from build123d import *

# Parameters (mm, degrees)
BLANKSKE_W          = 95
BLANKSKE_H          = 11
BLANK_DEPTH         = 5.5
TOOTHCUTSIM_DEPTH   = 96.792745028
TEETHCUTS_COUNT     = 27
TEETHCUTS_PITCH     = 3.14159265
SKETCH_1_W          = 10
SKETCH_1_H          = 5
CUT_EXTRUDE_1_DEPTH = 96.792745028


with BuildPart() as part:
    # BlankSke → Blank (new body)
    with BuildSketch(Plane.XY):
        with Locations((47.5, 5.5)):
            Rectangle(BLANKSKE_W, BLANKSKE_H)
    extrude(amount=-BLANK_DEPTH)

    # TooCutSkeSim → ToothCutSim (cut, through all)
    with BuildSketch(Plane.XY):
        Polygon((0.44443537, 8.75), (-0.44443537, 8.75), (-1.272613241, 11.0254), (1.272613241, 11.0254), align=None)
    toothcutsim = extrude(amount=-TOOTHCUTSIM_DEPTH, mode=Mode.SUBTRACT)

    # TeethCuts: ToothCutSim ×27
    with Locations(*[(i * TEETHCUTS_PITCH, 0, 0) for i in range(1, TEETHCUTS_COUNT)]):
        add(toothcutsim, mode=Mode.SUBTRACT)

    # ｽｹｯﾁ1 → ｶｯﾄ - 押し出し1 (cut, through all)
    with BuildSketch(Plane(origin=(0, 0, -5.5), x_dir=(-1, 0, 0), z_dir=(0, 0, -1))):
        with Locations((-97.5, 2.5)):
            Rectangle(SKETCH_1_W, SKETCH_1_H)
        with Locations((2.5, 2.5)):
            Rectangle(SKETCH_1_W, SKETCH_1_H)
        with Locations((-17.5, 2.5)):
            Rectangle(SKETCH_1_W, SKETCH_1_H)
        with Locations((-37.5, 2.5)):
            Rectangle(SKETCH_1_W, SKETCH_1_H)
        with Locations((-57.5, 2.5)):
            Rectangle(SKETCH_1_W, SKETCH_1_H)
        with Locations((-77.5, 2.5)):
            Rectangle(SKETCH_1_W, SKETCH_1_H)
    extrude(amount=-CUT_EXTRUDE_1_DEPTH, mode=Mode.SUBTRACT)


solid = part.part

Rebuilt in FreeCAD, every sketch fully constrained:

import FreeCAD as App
import Part
import Sketcher
Q = App.Units.Quantity


def add_polygon(sketch, points):
    """Adds a closed chain of lines whose ends are joined by coincident constraints."""
    first, n = sketch.GeometryCount, len(points)
    for a, b in zip(points, points[1:] + points[:1]):
        sketch.addGeometry(Part.LineSegment(App.Vector(*a, 0), App.Vector(*b, 0)), False)
    for i in range(n):
        sketch.addConstraint(Sketcher.Constraint("Coincident", first + i, 2, first + (i + 1) % n, 1))

doc = App.newDocument("Part")
body = doc.addObject("PartDesign::Body", "Body")

# Sketch on XY plane
sketch1 = doc.addObject("Sketcher::SketchObject", "Sketch")
body.addObject(sketch1)
sketch1.AttachmentSupport = (doc.XY_Plane, [""])
sketch1.MapMode = "FlatFace"
add_polygon(sketch1, [(0, 11), (0, 0), (95, 0), (95, 11)])  # lines 0-3
sketch1.addConstraint([
    Sketcher.Constraint("Vertical", 0),
    Sketcher.Constraint("Horizontal", 1),
    Sketcher.Constraint("Vertical", 2),
    Sketcher.Constraint("Horizontal", 3),
    Sketcher.Constraint("Coincident", 0, 2, -1, 1),
    Sketcher.Constraint("DistanceX", 1, 1, 1, 2, Q("95 mm")),
    Sketcher.Constraint("DistanceY", 0, 2, 0, 1, Q("11 mm")),
])
pad1 = doc.addObject("PartDesign::Pad", "Pad")
body.addObject(pad1)
pad1.Profile = sketch1
pad1.Length = 5.5
pad1.Reversed = True

# Sketch on XY plane
sketch2 = doc.addObject("Sketcher::SketchObject", "Sketch001")
body.addObject(sketch2)
sketch2.AttachmentSupport = (doc.XY_Plane, [""])
sketch2.MapMode = "FlatFace"
add_polygon(sketch2, [(-0.4, 8.8), (0.4, 8.8), (1.3, 11), (-1.3, 11)])  # lines 0-3
sketch2.addConstraint([
    Sketcher.Constraint("Horizontal", 0),
    Sketcher.Constraint("Horizontal", 2),
    Sketcher.Constraint("Equal", 1, 3),
    Sketcher.Constraint("Angle", 1, Q("70 deg")),
    Sketcher.Constraint("DistanceY", -1, 1, 0, 2, Q("8.75 mm")),
    Sketcher.Constraint("DistanceX", 0, 1, 0, 2, Q("0.888871 mm")),
    Sketcher.Constraint("DistanceY", -1, 1, 1, 2, Q("11.0254 mm")),
    Sketcher.Constraint("DistanceX", -1, 1, 0, 2, Q("0.444435 mm")),
])
pocket1 = doc.addObject("PartDesign::Pocket", "Pocket")
body.addObject(pocket1)
pocket1.Profile = sketch2
pocket1.Type = "ThroughAll"
doc.recompute()

linearpattern = doc.addObject("PartDesign::LinearPattern", "LinearPattern")
body.addObject(linearpattern)
linearpattern.Originals = [pocket1]
linearpattern.Direction = (doc.X_Axis, [""])
linearpattern.Mode = "offset"
linearpattern.Offset = 3.141593
linearpattern.Occurrences = 27
body.Tip = linearpattern

# Sketch on XY plane
sketch3 = doc.addObject("Sketcher::SketchObject", "Sketch002")
body.addObject(sketch3)
sketch3.AttachmentSupport = (doc.XY_Plane, [""])
sketch3.MapMode = "FlatFace"
sketch3.AttachmentOffset = App.Placement(App.Vector(0, 0, -5.5), App.Rotation())
add_polygon(sketch3, [(102, 5), (102, 0), (92, 0), (92, 5)])  # lines 0-3
add_polygon(sketch3, [(2, 5), (2, 0), (-8, 0), (-8, 5)])  # lines 4-7
add_polygon(sketch3, [(22, 5), (22, 0), (12, 0), (12, 5)])  # lines 8-11
add_polygon(sketch3, [(42, 5), (42, 0), (32, 0), (32, 5)])  # lines 12-15
add_polygon(sketch3, [(62, 5), (62, 0), (52, 0), (52, 5)])  # lines 16-19
add_polygon(sketch3, [(82, 5), (82, 0), (72, 0), (72, 5)])  # lines 20-23
sketch3.addConstraint([
    Sketcher.Constraint("Vertical", 0),
    Sketcher.Constraint("Horizontal", 1),
    Sketcher.Constraint("Vertical", 2),
    Sketcher.Constraint("Horizontal", 3),
    Sketcher.Constraint("Vertical", 4),
    Sketcher.Constraint("Horizontal", 5),
    Sketcher.Constraint("Vertical", 6),
    Sketcher.Constraint("Horizontal", 7),
    Sketcher.Constraint("Vertical", 8),
    Sketcher.Constraint("Horizontal", 9),
    Sketcher.Constraint("Vertical", 10),
    Sketcher.Constraint("Horizontal", 11),
    Sketcher.Constraint("Vertical", 12),
    Sketcher.Constraint("Horizontal", 13),
    Sketcher.Constraint("Vertical", 14),
    Sketcher.Constraint("Horizontal", 15),
    Sketcher.Constraint("Vertical", 16),
    Sketcher.Constraint("Horizontal", 17),
    Sketcher.Constraint("Vertical", 18),
    Sketcher.Constraint("Horizontal", 19),
    Sketcher.Constraint("Vertical", 20),
    Sketcher.Constraint("Horizontal", 21),
    Sketcher.Constraint("Vertical", 22),
    Sketcher.Constraint("Horizontal", 23),
    Sketcher.Constraint("PointOnObject", 0, 2, -1),
    Sketcher.Constraint("PointOnObject", 4, 2, -1),
    Sketcher.Constraint("PointOnObject", 8, 2, -1),
    Sketcher.Constraint("PointOnObject", 12, 2, -1),
    Sketcher.Constraint("PointOnObject", 16, 2, -1),
    Sketcher.Constraint("PointOnObject", 20, 2, -1),
    Sketcher.Constraint("Horizontal", 3, 2, 6, 2),
    Sketcher.Constraint("Horizontal", 7, 2, 10, 2),
    Sketcher.Constraint("Horizontal", 11, 2, 14, 2),
    Sketcher.Constraint("Horizontal", 15, 2, 18, 2),
    Sketcher.Constraint("Horizontal", 19, 2, 22, 2),
    Sketcher.Constraint("Equal", 3, 5),
    Sketcher.Constraint("Equal", 7, 9),
    Sketcher.Constraint("Equal", 11, 13),
    Sketcher.Constraint("Equal", 15, 17),
    Sketcher.Constraint("Equal", 19, 21),
    Sketcher.Constraint("DistanceX", 1, 2, 1, 1, Q("10 mm")),
    Sketcher.Constraint("DistanceY", 0, 2, 0, 1, Q("5 mm")),
    Sketcher.Constraint("DistanceX", 4, 2, 1, 2, Q("90 mm")),
    Sketcher.Constraint("DistanceX", 4, 2, 8, 2, Q("20 mm")),
    Sketcher.Constraint("DistanceX", 8, 2, 12, 2, Q("20 mm")),
    Sketcher.Constraint("DistanceX", 12, 2, 16, 2, Q("20 mm")),
    Sketcher.Constraint("DistanceX", 20, 2, 1, 2, Q("10 mm")),
    Sketcher.Constraint("DistanceX", -1, 1, 0, 2, Q("102.5 mm")),
])
pocket2 = doc.addObject("PartDesign::Pocket", "Pocket001")
body.addObject(pocket2)
pocket2.Profile = sketch3
pocket2.Type = "ThroughAll"
pocket2.Reversed = True

doc.recompute()
